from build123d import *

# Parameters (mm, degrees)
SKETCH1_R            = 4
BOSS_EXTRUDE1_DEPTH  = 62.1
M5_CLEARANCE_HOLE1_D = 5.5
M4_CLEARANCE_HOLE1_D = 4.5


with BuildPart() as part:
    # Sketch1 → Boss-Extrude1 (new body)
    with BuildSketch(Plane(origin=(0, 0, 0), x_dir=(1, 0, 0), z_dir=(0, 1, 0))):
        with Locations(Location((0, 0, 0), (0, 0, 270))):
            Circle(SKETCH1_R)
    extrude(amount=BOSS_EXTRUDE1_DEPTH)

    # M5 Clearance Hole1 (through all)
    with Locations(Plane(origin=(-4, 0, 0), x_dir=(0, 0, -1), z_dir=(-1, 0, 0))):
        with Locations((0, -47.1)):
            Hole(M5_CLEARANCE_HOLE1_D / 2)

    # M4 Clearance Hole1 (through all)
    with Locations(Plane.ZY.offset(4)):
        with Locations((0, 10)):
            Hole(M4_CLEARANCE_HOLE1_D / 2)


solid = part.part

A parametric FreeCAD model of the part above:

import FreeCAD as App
import Part
import Sketcher
from FreeCAD import Vector
Q = App.Units.Quantity

doc = App.newDocument("Part")
params = doc.addObject("Spreadsheet::Sheet", "Params")
for row, (alias, value) in enumerate([
    ("sketch1_diameter", "8 mm"),
    ("pad1_length", "62.1 mm"),
    ("sketch2_diameter", "5.5 mm"),
    ("hole_diameter", "5.5 mm"),
    ("sketch3_diameter", "4.5 mm"),
    ("hole2_diameter", "4.5 mm"),
], start=1):
    params.set(f"A{row}", alias)
    params.set(f"B{row}", "=" + value)
    params.setAlias(f"B{row}", alias)

body = doc.addObject("PartDesign::Body", "Body")

sketch1 = doc.addObject("Sketcher::SketchObject", "Sketch")
body.addObject(sketch1)
sketch1.AttachmentSupport = (doc.XZ_Plane, [""])
sketch1.MapMode = "FlatFace"
sketch1.addGeometry(Part.Circle(Vector(0, 0, 0), Vector(0, 0, 1), 4), False)
sketch1.addConstraint([
    Sketcher.Constraint("Coincident", 0, 3, -1, 1),
    Sketcher.Constraint("Diameter", 0, Q("8 mm")),
])
sketch1.setExpression("Constraints[1]", "Params.sketch1_diameter")
pad1 = doc.addObject("PartDesign::Pad", "Pad")
body.addObject(pad1)
pad1.Profile = sketch1
pad1.setExpression("Length", "Params.pad1_length")
pad1.Reversed = True

sketch2 = doc.addObject("Sketcher::SketchObject", "Sketch001")
body.addObject(sketch2)
sketch2.AttachmentSupport = (doc.YZ_Plane, [""])
sketch2.MapMode = "FlatFace"
sketch2.AttachmentOffset = App.Placement(Vector(0, 0, -4), App.Rotation())
sketch2.addGeometry(Part.Circle(Vector(47.1, 0, 0), Vector(0, 0, 1), 2.75), False)
sketch2.addConstraint([
    Sketcher.Constraint("PointOnObject", 0, 3, -1),
    Sketcher.Constraint("Diameter", 0, Q("5.5 mm")),
    Sketcher.Constraint("DistanceX", -1, 1, 0, 3, Q("47.1 mm")),
])
sketch2.setExpression("Constraints[1]", "Params.sketch2_diameter")
doc.recompute()
hole = doc.addObject("PartDesign::Hole", "Hole")
body.addObject(hole)
hole.Profile = sketch2
hole.ThreadType = "None"
hole.setExpression("Diameter", "Params.hole_diameter")
hole.DepthType = "ThroughAll"
hole.Reversed = True

sketch3 = doc.addObject("Sketcher::SketchObject", "Sketch002")
body.addObject(sketch3)
sketch3.AttachmentSupport = (doc.YZ_Plane, [""])
sketch3.MapMode = "FlatFace"
sketch3.AttachmentOffset = App.Placement(Vector(0, 0, -4), App.Rotation())
sketch3.addGeometry(Part.Circle(Vector(10, 0, 0), Vector(0, 0, 1), 2.25), False)
sketch3.addConstraint([
    Sketcher.Constraint("PointOnObject", 0, 3, -1),
    Sketcher.Constraint("Diameter", 0, Q("4.5 mm")),
    Sketcher.Constraint("DistanceX", -1, 1, 0, 3, Q("10 mm")),
])
sketch3.setExpression("Constraints[1]", "Params.sketch3_diameter")
doc.recompute()
hole2 = doc.addObject("PartDesign::Hole", "Hole001")
body.addObject(hole2)
hole2.Profile = sketch3
hole2.ThreadType = "None"
hole2.setExpression("Diameter", "Params.hole2_diameter")
hole2.DepthType = "ThroughAll"
hole2.Reversed = True

doc.recompute()
